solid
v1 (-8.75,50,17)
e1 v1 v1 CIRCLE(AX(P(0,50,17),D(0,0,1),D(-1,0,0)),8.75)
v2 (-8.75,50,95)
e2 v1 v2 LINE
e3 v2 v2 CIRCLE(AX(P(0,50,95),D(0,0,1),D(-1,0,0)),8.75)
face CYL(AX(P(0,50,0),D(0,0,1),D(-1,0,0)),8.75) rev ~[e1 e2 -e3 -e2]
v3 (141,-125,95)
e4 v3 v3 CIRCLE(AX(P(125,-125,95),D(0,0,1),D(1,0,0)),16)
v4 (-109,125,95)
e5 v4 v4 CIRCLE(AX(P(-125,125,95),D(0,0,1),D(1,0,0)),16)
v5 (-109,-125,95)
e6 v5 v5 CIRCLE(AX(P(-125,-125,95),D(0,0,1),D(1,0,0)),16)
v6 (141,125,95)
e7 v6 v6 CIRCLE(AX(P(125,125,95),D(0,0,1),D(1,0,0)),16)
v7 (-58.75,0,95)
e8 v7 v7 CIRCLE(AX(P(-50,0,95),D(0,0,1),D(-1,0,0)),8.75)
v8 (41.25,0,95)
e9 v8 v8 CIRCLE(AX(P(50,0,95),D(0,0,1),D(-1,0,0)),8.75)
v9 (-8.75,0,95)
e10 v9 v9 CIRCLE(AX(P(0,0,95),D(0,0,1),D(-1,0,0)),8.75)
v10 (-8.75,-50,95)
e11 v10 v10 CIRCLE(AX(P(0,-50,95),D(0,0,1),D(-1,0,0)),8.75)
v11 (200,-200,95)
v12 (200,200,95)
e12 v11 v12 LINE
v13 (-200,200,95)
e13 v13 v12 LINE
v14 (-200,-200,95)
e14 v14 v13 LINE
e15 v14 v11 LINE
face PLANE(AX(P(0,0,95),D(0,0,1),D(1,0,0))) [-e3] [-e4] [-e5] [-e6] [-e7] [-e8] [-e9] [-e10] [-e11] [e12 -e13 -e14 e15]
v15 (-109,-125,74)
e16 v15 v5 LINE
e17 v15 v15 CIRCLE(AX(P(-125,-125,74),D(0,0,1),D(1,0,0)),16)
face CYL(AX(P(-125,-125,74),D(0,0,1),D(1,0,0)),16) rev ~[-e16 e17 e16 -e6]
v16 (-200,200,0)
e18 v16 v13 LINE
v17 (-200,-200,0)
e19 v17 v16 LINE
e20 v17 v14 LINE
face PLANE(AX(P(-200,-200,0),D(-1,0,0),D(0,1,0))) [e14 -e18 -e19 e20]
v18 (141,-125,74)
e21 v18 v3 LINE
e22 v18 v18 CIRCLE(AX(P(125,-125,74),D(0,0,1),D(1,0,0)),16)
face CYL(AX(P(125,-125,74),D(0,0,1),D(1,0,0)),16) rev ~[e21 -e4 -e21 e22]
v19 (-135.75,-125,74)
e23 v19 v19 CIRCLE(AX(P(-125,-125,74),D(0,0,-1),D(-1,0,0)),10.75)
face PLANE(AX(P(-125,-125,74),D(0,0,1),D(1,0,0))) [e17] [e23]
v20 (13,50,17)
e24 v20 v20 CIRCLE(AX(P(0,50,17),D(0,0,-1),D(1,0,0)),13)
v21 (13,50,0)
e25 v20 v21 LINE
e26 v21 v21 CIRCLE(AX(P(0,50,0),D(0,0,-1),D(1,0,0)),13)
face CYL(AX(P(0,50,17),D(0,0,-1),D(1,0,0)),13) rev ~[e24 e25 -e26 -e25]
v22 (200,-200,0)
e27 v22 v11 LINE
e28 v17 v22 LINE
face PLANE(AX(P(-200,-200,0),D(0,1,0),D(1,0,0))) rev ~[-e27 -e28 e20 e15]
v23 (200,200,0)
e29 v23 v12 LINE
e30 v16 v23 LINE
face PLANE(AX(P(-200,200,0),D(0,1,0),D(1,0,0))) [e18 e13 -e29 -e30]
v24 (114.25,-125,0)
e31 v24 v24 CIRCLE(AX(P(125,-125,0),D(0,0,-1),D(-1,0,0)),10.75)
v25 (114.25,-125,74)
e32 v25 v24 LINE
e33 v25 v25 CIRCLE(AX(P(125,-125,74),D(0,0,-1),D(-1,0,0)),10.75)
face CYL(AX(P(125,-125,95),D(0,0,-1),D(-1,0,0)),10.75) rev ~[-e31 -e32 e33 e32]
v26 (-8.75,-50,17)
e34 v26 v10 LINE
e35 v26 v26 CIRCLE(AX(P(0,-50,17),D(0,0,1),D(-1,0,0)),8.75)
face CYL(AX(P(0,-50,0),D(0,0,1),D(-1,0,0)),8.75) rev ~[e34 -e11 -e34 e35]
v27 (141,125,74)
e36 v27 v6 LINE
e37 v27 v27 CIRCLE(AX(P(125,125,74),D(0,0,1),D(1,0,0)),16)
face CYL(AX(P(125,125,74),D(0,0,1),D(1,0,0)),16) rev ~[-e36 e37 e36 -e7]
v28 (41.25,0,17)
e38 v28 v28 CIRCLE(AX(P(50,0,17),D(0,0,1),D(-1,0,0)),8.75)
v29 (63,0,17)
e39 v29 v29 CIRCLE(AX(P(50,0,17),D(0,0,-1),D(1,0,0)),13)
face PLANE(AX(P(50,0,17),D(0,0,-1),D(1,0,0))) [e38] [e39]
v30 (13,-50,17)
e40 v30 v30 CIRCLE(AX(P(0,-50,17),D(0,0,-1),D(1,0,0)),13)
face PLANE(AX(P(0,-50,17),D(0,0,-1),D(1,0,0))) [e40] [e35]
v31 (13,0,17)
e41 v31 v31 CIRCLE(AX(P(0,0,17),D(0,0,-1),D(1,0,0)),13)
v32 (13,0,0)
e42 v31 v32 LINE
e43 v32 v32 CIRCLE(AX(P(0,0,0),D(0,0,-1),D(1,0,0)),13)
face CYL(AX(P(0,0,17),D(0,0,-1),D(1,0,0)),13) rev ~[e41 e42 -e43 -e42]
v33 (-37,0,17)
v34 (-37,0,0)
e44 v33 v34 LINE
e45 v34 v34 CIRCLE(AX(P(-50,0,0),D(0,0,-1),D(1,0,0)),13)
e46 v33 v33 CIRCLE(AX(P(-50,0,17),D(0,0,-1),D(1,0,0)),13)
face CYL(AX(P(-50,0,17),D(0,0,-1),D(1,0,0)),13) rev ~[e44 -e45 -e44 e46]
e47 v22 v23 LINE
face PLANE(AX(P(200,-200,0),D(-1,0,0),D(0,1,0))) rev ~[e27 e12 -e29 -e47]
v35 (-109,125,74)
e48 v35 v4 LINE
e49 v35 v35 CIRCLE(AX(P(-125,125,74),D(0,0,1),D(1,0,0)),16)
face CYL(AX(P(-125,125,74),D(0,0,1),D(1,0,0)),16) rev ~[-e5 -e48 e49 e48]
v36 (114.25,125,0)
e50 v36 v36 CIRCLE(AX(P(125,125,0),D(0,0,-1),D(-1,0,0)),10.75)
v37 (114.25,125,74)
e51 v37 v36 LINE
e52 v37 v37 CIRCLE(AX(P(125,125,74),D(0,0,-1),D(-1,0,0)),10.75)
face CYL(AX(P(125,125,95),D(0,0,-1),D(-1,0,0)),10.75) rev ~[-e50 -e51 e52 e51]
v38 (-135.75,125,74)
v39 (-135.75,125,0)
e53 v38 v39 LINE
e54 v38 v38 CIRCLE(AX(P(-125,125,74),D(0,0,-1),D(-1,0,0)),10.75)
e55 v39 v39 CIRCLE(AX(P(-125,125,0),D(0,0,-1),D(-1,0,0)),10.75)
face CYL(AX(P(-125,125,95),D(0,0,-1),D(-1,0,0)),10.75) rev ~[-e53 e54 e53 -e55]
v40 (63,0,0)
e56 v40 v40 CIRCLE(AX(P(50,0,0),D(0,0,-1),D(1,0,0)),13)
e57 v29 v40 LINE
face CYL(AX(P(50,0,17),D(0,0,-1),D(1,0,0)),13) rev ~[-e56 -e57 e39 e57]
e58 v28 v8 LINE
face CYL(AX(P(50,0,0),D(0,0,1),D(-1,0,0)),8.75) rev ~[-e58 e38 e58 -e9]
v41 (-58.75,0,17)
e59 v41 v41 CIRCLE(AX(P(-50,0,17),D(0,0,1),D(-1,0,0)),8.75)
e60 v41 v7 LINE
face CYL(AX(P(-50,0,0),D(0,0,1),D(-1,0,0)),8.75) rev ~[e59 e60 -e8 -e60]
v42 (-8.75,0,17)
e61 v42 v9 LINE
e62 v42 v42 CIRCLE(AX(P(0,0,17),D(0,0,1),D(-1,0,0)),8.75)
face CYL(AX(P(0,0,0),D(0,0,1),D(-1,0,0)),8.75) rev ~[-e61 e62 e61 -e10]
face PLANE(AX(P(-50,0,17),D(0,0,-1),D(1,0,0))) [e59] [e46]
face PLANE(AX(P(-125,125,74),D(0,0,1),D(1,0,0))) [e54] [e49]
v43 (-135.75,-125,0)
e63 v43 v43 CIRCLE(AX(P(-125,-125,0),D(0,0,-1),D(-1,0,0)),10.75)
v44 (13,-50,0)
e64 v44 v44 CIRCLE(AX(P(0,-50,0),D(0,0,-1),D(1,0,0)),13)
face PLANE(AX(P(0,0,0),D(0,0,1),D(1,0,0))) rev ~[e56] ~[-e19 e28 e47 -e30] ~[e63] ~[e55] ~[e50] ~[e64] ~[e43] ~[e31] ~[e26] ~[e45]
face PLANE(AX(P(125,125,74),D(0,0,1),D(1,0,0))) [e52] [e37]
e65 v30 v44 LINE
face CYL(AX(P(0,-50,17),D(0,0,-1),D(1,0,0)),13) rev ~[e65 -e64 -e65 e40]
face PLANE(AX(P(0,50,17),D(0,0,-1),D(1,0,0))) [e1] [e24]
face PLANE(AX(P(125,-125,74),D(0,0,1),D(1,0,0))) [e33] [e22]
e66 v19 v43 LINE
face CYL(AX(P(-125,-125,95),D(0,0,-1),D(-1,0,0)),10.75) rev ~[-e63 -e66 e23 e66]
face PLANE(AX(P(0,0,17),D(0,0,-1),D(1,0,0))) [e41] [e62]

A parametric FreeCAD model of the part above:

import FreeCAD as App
import Part
import Sketcher

doc = App.newDocument("Part")
body = doc.addObject("PartDesign::Body", "Body")

sketch1 = doc.addObject("Sketcher::SketchObject", "Sketch")
body.addObject(sketch1)
sketch1.AttachmentSupport = (doc.XY_Plane, [""])
sketch1.MapMode = "FlatFace"
sketch1.addGeometry([
    Part.LineSegment(App.Vector(-200, 200, 0), App.Vector(-200, -200, 0)),
    Part.LineSegment(App.Vector(-200, -200, 0), App.Vector(200, -200, 0)),
    Part.LineSegment(App.Vector(200, -200, 0), App.Vector(200, 200, 0)),
    Part.LineSegment(App.Vector(200, 200, 0), App.Vector(-200, 200, 0)),
], False)
sketch1.addConstraint([
    Sketcher.Constraint("Coincident", 0, 2, 1, 1),
    Sketcher.Constraint("Coincident", 1, 2, 2, 1),
    Sketcher.Constraint("Coincident", 2, 2, 3, 1),
    Sketcher.Constraint("Coincident", 3, 2, 0, 1),
    Sketcher.Constraint("Vertical", 0),
    Sketcher.Constraint("Horizontal", 1),
    Sketcher.Constraint("Vertical", 2),
    Sketcher.Constraint("Horizontal", 3),
    Sketcher.Constraint("Symmetric", 0, 2, 2, 2, -1, 1),
    Sketcher.Constraint("Equal", 3, 0),
    Sketcher.Constraint("DistanceX", 1, 1, 1, 2, 400.0),
])
pad1 = doc.addObject("PartDesign::Pad", "Pad")
body.addObject(pad1)
pad1.Profile = sketch1
pad1.Length = 95

sketch2 = doc.addObject("Sketcher::SketchObject", "Sketch001")
body.addObject(sketch2)
sketch2.AttachmentSupport = (doc.XY_Plane, [""])
sketch2.MapMode = "FlatFace"
sketch2.addGeometry([
    Part.Circle(App.Vector(0, 0, 0), App.Vector(0, 0, 1), 9),
    Part.Circle(App.Vector(0, -50, 0), App.Vector(0, 0, 1), 9),
    Part.Circle(App.Vector(-50, 0, 0), App.Vector(0, 0, 1), 9),
    Part.Circle(App.Vector(0, 50, 0), App.Vector(0, 0, 1), 9),
    Part.Circle(App.Vector(50, 0, 0), App.Vector(0, 0, 1), 9),
], False)
sketch2.addConstraint([
    Sketcher.Constraint("Coincident", 0, 3, -1, 1),
    Sketcher.Constraint("Equal", 0, 1),
    Sketcher.Constraint("Equal", 1, 2),
    Sketcher.Constraint("Equal", 2, 3),
    Sketcher.Constraint("Equal", 3, 4),
    Sketcher.Constraint("Symmetric", 1, 3, 3, 3, -1, 1),
    Sketcher.Constraint("Symmetric", 2, 3, 4, 3, -1, 1),
    Sketcher.Constraint("PointOnObject", 1, 3, -2),
    Sketcher.Constraint("PointOnObject", 2, 3, -1),
    Sketcher.Constraint("Diameter", 0, 17.5),
    Sketcher.Constraint("DistanceY", 1, 3, -1, 1, 50.0),
    Sketcher.Constraint("DistanceX", 2, 3, -1, 1, 50.0),
])
doc.recompute()
hole = doc.addObject("PartDesign::Hole", "Hole")
body.addObject(hole)
hole.Profile = sketch2
hole.ThreadType = "None"
hole.Diameter = 17.5
hole.DepthType = "ThroughAll"
hole.HoleCutType = "Counterbore"
hole.HoleCutDiameter = 26
hole.HoleCutDepth = 17
hole.Reversed = True

sketch3 = doc.addObject("Sketcher::SketchObject", "Sketch002")
body.addObject(sketch3)
sketch3.AttachmentSupport = (doc.XY_Plane, [""])
sketch3.MapMode = "FlatFace"
sketch3.AttachmentOffset = App.Placement(App.Vector(0, 0, 95), App.Rotation())
sketch3.addGeometry([
    Part.Circle(App.Vector(-125, 125, 0), App.Vector(0, 0, 1), 11),
    Part.Circle(App.Vector(125, 125, 0), App.Vector(0, 0, 1), 11),
    Part.Circle(App.Vector(-125, -125, 0), App.Vector(0, 0, 1), 11),
    Part.Circle(App.Vector(125, -125, 0), App.Vector(0, 0, 1), 11),
], False)
sketch3.addConstraint([
    Sketcher.Constraint("Equal", 0, 1),
    Sketcher.Constraint("Equal", 1, 2),
    Sketcher.Constraint("Equal", 2, 3),
    Sketcher.Constraint("Symmetric", 1, 3, 2, 3, -1, 1),
    Sketcher.Constraint("Symmetric", 0, 3, 3, 3, -1, 1),
    Sketcher.Constraint("Symmetric", 0, 3, 1, 3, -2),
    Sketcher.Constraint("Diameter", 0, 21.5),
    Sketcher.Constraint("DistanceX", 0, 3, -1, 1, 125.0),
    Sketcher.Constraint("DistanceY", -1, 1, 0, 3, 125.0),
])
doc.recompute()
hole2 = doc.addObject("PartDesign::Hole", "Hole001")
body.addObject(hole2)
hole2.Profile = sketch3
hole2.ThreadType = "None"
hole2.Diameter = 21.5
hole2.DepthType = "ThroughAll"
hole2.HoleCutType = "Counterbore"
hole2.HoleCutDiameter = 32
hole2.HoleCutDepth = 21

doc.recompute()
